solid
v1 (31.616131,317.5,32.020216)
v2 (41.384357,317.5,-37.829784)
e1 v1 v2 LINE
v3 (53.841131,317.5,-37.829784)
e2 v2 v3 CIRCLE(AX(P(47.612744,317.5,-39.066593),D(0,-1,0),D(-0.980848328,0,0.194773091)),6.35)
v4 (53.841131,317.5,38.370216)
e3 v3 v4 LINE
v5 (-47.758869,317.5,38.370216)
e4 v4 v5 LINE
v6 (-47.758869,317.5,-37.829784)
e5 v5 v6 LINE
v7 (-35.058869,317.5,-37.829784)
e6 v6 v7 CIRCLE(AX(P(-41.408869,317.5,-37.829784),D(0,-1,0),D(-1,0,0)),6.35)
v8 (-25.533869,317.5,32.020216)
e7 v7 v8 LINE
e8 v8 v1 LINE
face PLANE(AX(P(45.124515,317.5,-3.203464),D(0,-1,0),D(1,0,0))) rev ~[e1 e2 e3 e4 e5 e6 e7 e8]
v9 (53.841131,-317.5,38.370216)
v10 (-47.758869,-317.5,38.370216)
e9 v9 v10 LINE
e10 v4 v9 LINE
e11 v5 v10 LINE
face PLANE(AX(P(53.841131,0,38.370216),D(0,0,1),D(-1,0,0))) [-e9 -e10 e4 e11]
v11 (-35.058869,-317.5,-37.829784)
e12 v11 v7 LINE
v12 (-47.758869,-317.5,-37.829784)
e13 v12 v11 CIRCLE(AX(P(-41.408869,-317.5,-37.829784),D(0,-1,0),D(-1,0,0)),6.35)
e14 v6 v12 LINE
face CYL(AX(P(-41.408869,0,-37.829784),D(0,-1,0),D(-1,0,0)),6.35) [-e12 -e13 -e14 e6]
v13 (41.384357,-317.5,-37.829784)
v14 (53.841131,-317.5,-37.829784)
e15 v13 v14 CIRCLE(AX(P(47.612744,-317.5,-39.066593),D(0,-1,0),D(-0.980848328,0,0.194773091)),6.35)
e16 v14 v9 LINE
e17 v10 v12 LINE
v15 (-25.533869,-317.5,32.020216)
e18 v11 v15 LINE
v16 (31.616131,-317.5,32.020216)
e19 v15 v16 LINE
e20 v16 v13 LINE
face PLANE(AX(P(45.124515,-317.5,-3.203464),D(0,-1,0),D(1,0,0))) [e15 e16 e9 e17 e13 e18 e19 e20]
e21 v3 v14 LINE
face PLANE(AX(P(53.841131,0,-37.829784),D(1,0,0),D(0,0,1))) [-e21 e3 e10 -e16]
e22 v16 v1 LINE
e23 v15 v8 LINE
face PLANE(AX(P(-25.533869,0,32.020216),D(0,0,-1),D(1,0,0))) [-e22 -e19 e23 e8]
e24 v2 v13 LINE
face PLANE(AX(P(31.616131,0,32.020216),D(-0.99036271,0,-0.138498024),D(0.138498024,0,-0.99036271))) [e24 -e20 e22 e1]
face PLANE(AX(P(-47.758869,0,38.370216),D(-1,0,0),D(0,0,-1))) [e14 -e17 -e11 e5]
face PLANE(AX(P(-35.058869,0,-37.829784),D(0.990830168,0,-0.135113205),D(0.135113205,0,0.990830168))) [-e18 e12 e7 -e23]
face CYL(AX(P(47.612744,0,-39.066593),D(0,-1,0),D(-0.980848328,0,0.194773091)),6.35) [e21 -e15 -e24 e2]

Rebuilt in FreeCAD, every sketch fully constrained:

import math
import FreeCAD as App
import Part
import Sketcher
Q = App.Units.Quantity

doc = App.newDocument("Part")
body = doc.addObject("PartDesign::Body", "Body")

sketch1 = body.newObject("Sketcher::SketchObject", "Sketch")
sketch1.AttachmentSupport = (doc.getObject("XZ_Plane"), [""])
sketch1.MapMode = "FlatFace"
sketch1.addGeometry(Part.LineSegment(App.Vector(32, 32, 0), App.Vector(41, -38, 0)), False)
sketch1.addGeometry(Part.ArcOfCircle(Part.Circle(App.Vector(48, -39, 0), App.Vector(0, 0, 1), 6), math.radians(169), math.radians(371)), False)
sketch1.addGeometry(Part.LineSegment(App.Vector(54, -38, 0), App.Vector(54, 38, 0)), False)
sketch1.addGeometry(Part.LineSegment(App.Vector(54, 38, 0), App.Vector(-48, 38, 0)), False)
sketch1.addGeometry(Part.LineSegment(App.Vector(-48, 38, 0), App.Vector(-48, -38, 0)), False)
sketch1.addGeometry(Part.ArcOfCircle(Part.Circle(App.Vector(-41, -38, 0), App.Vector(0, 0, 1), 6), math.radians(180), math.radians(360)), False)
sketch1.addGeometry(Part.LineSegment(App.Vector(-35, -38, 0), App.Vector(-26, 32, 0)), False)
sketch1.addGeometry(Part.LineSegment(App.Vector(-26, 32, 0), App.Vector(32, 32, 0)), False)
sketch1.addConstraint(Sketcher.Constraint("Coincident", 0, 2, 1, 1))
sketch1.addConstraint(Sketcher.Constraint("Coincident", 1, 2, 2, 1))
sketch1.addConstraint(Sketcher.Constraint("Coincident", 2, 2, 3, 1))
sketch1.addConstraint(Sketcher.Constraint("Coincident", 3, 2, 4, 1))
sketch1.addConstraint(Sketcher.Constraint("Tangent", 4, 2, 5, 1))
sketch1.addConstraint(Sketcher.Constraint("Coincident", 5, 2, 6, 1))
sketch1.addConstraint(Sketcher.Constraint("Coincident", 6, 2, 7, 1))
sketch1.addConstraint(Sketcher.Constraint("Coincident", 7, 2, 0, 1))
sketch1.addConstraint(Sketcher.Constraint("Vertical", 2))
sketch1.addConstraint(Sketcher.Constraint("Horizontal", 3))
sketch1.addConstraint(Sketcher.Constraint("Vertical", 4))
sketch1.addConstraint(Sketcher.Constraint("Horizontal", 7))
sketch1.addConstraint(Sketcher.Constraint("Equal", 1, 5))
sketch1.addConstraint(Sketcher.Constraint("Horizontal", 5, 3, 0, 2))
sketch1.addConstraint(Sketcher.Constraint("Horizontal", 0, 2, 1, 2))
sketch1.addConstraint(Sketcher.Constraint("Horizontal", 4, 2, 5, 2))
sketch1.addConstraint(Sketcher.Constraint("DistanceX", 3, 2, 3, 1, Q("4 in")))
sketch1.addConstraint(Sketcher.Constraint("DistanceY", 2, 1, 2, 2, Q("3 in")))
sketch1.addConstraint(Sketcher.Constraint("Radius", 1, Q("0.25 in")))
sketch1.addConstraint(Sketcher.Constraint("DistanceX", 7, 1, 7, 2, Q("2.25 in")))
sketch1.addConstraint(Sketcher.Constraint("DistanceY", 6, 2, 3, 2, Q("0.25 in")))
sketch1.addConstraint(Sketcher.Constraint("DistanceX", 3, 2, 6, 2, Q("0.875 in")))
sketch1.addConstraint(Sketcher.Constraint("DistanceX", 5, 3, -1, 1, 41.408869))
sketch1.addConstraint(Sketcher.Constraint("DistanceY", 1, 3, 5, 3, 1.236809))
sketch1.addConstraint(Sketcher.Constraint("DistanceY", 1, 3, -1, 1, 39.066593))
pad1 = body.newObject("PartDesign::Pad", "Pad")
pad1.Profile = sketch1
pad1.Length = Q("25 in")
pad1.Midplane = True

doc.recompute()
